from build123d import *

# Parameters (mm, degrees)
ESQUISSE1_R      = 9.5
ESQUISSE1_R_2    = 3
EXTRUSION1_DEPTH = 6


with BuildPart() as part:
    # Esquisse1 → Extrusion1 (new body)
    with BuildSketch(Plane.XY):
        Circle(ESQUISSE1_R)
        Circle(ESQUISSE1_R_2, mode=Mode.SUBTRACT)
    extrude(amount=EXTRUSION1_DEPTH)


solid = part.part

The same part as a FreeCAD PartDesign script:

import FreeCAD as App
import Part
import Sketcher

V = App.Vector
Q = App.Units.Quantity

doc = App.newDocument("Part")
body = doc.addObject("PartDesign::Body", "Body")

sketch1 = doc.addObject("Sketcher::SketchObject", "Sketch")
body.addObject(sketch1)
sketch1.AttachmentSupport = (doc.XY_Plane, [""])
sketch1.MapMode = "FlatFace"
sketch1.addGeometry([
    Part.Circle(V(0, 0, 0), V(0, 0, 1), 9.5),
    Part.Circle(V(0, 0, 0), V(0, 0, 1), 3),
], False)
sketch1.addConstraint([
    Sketcher.Constraint("Coincident", 0, 3, -1, 1),
    Sketcher.Constraint("Coincident", 1, 3, -1, 1),
    Sketcher.Constraint("Diameter", 0, Q("19 mm")),
    Sketcher.Constraint("Diameter", 1, Q("6 mm")),
])
pad1 = doc.addObject("PartDesign::Pad", "Pad")
body.addObject(pad1)
pad1.Profile = sketch1
pad1.Length = 6

doc.recompute()
